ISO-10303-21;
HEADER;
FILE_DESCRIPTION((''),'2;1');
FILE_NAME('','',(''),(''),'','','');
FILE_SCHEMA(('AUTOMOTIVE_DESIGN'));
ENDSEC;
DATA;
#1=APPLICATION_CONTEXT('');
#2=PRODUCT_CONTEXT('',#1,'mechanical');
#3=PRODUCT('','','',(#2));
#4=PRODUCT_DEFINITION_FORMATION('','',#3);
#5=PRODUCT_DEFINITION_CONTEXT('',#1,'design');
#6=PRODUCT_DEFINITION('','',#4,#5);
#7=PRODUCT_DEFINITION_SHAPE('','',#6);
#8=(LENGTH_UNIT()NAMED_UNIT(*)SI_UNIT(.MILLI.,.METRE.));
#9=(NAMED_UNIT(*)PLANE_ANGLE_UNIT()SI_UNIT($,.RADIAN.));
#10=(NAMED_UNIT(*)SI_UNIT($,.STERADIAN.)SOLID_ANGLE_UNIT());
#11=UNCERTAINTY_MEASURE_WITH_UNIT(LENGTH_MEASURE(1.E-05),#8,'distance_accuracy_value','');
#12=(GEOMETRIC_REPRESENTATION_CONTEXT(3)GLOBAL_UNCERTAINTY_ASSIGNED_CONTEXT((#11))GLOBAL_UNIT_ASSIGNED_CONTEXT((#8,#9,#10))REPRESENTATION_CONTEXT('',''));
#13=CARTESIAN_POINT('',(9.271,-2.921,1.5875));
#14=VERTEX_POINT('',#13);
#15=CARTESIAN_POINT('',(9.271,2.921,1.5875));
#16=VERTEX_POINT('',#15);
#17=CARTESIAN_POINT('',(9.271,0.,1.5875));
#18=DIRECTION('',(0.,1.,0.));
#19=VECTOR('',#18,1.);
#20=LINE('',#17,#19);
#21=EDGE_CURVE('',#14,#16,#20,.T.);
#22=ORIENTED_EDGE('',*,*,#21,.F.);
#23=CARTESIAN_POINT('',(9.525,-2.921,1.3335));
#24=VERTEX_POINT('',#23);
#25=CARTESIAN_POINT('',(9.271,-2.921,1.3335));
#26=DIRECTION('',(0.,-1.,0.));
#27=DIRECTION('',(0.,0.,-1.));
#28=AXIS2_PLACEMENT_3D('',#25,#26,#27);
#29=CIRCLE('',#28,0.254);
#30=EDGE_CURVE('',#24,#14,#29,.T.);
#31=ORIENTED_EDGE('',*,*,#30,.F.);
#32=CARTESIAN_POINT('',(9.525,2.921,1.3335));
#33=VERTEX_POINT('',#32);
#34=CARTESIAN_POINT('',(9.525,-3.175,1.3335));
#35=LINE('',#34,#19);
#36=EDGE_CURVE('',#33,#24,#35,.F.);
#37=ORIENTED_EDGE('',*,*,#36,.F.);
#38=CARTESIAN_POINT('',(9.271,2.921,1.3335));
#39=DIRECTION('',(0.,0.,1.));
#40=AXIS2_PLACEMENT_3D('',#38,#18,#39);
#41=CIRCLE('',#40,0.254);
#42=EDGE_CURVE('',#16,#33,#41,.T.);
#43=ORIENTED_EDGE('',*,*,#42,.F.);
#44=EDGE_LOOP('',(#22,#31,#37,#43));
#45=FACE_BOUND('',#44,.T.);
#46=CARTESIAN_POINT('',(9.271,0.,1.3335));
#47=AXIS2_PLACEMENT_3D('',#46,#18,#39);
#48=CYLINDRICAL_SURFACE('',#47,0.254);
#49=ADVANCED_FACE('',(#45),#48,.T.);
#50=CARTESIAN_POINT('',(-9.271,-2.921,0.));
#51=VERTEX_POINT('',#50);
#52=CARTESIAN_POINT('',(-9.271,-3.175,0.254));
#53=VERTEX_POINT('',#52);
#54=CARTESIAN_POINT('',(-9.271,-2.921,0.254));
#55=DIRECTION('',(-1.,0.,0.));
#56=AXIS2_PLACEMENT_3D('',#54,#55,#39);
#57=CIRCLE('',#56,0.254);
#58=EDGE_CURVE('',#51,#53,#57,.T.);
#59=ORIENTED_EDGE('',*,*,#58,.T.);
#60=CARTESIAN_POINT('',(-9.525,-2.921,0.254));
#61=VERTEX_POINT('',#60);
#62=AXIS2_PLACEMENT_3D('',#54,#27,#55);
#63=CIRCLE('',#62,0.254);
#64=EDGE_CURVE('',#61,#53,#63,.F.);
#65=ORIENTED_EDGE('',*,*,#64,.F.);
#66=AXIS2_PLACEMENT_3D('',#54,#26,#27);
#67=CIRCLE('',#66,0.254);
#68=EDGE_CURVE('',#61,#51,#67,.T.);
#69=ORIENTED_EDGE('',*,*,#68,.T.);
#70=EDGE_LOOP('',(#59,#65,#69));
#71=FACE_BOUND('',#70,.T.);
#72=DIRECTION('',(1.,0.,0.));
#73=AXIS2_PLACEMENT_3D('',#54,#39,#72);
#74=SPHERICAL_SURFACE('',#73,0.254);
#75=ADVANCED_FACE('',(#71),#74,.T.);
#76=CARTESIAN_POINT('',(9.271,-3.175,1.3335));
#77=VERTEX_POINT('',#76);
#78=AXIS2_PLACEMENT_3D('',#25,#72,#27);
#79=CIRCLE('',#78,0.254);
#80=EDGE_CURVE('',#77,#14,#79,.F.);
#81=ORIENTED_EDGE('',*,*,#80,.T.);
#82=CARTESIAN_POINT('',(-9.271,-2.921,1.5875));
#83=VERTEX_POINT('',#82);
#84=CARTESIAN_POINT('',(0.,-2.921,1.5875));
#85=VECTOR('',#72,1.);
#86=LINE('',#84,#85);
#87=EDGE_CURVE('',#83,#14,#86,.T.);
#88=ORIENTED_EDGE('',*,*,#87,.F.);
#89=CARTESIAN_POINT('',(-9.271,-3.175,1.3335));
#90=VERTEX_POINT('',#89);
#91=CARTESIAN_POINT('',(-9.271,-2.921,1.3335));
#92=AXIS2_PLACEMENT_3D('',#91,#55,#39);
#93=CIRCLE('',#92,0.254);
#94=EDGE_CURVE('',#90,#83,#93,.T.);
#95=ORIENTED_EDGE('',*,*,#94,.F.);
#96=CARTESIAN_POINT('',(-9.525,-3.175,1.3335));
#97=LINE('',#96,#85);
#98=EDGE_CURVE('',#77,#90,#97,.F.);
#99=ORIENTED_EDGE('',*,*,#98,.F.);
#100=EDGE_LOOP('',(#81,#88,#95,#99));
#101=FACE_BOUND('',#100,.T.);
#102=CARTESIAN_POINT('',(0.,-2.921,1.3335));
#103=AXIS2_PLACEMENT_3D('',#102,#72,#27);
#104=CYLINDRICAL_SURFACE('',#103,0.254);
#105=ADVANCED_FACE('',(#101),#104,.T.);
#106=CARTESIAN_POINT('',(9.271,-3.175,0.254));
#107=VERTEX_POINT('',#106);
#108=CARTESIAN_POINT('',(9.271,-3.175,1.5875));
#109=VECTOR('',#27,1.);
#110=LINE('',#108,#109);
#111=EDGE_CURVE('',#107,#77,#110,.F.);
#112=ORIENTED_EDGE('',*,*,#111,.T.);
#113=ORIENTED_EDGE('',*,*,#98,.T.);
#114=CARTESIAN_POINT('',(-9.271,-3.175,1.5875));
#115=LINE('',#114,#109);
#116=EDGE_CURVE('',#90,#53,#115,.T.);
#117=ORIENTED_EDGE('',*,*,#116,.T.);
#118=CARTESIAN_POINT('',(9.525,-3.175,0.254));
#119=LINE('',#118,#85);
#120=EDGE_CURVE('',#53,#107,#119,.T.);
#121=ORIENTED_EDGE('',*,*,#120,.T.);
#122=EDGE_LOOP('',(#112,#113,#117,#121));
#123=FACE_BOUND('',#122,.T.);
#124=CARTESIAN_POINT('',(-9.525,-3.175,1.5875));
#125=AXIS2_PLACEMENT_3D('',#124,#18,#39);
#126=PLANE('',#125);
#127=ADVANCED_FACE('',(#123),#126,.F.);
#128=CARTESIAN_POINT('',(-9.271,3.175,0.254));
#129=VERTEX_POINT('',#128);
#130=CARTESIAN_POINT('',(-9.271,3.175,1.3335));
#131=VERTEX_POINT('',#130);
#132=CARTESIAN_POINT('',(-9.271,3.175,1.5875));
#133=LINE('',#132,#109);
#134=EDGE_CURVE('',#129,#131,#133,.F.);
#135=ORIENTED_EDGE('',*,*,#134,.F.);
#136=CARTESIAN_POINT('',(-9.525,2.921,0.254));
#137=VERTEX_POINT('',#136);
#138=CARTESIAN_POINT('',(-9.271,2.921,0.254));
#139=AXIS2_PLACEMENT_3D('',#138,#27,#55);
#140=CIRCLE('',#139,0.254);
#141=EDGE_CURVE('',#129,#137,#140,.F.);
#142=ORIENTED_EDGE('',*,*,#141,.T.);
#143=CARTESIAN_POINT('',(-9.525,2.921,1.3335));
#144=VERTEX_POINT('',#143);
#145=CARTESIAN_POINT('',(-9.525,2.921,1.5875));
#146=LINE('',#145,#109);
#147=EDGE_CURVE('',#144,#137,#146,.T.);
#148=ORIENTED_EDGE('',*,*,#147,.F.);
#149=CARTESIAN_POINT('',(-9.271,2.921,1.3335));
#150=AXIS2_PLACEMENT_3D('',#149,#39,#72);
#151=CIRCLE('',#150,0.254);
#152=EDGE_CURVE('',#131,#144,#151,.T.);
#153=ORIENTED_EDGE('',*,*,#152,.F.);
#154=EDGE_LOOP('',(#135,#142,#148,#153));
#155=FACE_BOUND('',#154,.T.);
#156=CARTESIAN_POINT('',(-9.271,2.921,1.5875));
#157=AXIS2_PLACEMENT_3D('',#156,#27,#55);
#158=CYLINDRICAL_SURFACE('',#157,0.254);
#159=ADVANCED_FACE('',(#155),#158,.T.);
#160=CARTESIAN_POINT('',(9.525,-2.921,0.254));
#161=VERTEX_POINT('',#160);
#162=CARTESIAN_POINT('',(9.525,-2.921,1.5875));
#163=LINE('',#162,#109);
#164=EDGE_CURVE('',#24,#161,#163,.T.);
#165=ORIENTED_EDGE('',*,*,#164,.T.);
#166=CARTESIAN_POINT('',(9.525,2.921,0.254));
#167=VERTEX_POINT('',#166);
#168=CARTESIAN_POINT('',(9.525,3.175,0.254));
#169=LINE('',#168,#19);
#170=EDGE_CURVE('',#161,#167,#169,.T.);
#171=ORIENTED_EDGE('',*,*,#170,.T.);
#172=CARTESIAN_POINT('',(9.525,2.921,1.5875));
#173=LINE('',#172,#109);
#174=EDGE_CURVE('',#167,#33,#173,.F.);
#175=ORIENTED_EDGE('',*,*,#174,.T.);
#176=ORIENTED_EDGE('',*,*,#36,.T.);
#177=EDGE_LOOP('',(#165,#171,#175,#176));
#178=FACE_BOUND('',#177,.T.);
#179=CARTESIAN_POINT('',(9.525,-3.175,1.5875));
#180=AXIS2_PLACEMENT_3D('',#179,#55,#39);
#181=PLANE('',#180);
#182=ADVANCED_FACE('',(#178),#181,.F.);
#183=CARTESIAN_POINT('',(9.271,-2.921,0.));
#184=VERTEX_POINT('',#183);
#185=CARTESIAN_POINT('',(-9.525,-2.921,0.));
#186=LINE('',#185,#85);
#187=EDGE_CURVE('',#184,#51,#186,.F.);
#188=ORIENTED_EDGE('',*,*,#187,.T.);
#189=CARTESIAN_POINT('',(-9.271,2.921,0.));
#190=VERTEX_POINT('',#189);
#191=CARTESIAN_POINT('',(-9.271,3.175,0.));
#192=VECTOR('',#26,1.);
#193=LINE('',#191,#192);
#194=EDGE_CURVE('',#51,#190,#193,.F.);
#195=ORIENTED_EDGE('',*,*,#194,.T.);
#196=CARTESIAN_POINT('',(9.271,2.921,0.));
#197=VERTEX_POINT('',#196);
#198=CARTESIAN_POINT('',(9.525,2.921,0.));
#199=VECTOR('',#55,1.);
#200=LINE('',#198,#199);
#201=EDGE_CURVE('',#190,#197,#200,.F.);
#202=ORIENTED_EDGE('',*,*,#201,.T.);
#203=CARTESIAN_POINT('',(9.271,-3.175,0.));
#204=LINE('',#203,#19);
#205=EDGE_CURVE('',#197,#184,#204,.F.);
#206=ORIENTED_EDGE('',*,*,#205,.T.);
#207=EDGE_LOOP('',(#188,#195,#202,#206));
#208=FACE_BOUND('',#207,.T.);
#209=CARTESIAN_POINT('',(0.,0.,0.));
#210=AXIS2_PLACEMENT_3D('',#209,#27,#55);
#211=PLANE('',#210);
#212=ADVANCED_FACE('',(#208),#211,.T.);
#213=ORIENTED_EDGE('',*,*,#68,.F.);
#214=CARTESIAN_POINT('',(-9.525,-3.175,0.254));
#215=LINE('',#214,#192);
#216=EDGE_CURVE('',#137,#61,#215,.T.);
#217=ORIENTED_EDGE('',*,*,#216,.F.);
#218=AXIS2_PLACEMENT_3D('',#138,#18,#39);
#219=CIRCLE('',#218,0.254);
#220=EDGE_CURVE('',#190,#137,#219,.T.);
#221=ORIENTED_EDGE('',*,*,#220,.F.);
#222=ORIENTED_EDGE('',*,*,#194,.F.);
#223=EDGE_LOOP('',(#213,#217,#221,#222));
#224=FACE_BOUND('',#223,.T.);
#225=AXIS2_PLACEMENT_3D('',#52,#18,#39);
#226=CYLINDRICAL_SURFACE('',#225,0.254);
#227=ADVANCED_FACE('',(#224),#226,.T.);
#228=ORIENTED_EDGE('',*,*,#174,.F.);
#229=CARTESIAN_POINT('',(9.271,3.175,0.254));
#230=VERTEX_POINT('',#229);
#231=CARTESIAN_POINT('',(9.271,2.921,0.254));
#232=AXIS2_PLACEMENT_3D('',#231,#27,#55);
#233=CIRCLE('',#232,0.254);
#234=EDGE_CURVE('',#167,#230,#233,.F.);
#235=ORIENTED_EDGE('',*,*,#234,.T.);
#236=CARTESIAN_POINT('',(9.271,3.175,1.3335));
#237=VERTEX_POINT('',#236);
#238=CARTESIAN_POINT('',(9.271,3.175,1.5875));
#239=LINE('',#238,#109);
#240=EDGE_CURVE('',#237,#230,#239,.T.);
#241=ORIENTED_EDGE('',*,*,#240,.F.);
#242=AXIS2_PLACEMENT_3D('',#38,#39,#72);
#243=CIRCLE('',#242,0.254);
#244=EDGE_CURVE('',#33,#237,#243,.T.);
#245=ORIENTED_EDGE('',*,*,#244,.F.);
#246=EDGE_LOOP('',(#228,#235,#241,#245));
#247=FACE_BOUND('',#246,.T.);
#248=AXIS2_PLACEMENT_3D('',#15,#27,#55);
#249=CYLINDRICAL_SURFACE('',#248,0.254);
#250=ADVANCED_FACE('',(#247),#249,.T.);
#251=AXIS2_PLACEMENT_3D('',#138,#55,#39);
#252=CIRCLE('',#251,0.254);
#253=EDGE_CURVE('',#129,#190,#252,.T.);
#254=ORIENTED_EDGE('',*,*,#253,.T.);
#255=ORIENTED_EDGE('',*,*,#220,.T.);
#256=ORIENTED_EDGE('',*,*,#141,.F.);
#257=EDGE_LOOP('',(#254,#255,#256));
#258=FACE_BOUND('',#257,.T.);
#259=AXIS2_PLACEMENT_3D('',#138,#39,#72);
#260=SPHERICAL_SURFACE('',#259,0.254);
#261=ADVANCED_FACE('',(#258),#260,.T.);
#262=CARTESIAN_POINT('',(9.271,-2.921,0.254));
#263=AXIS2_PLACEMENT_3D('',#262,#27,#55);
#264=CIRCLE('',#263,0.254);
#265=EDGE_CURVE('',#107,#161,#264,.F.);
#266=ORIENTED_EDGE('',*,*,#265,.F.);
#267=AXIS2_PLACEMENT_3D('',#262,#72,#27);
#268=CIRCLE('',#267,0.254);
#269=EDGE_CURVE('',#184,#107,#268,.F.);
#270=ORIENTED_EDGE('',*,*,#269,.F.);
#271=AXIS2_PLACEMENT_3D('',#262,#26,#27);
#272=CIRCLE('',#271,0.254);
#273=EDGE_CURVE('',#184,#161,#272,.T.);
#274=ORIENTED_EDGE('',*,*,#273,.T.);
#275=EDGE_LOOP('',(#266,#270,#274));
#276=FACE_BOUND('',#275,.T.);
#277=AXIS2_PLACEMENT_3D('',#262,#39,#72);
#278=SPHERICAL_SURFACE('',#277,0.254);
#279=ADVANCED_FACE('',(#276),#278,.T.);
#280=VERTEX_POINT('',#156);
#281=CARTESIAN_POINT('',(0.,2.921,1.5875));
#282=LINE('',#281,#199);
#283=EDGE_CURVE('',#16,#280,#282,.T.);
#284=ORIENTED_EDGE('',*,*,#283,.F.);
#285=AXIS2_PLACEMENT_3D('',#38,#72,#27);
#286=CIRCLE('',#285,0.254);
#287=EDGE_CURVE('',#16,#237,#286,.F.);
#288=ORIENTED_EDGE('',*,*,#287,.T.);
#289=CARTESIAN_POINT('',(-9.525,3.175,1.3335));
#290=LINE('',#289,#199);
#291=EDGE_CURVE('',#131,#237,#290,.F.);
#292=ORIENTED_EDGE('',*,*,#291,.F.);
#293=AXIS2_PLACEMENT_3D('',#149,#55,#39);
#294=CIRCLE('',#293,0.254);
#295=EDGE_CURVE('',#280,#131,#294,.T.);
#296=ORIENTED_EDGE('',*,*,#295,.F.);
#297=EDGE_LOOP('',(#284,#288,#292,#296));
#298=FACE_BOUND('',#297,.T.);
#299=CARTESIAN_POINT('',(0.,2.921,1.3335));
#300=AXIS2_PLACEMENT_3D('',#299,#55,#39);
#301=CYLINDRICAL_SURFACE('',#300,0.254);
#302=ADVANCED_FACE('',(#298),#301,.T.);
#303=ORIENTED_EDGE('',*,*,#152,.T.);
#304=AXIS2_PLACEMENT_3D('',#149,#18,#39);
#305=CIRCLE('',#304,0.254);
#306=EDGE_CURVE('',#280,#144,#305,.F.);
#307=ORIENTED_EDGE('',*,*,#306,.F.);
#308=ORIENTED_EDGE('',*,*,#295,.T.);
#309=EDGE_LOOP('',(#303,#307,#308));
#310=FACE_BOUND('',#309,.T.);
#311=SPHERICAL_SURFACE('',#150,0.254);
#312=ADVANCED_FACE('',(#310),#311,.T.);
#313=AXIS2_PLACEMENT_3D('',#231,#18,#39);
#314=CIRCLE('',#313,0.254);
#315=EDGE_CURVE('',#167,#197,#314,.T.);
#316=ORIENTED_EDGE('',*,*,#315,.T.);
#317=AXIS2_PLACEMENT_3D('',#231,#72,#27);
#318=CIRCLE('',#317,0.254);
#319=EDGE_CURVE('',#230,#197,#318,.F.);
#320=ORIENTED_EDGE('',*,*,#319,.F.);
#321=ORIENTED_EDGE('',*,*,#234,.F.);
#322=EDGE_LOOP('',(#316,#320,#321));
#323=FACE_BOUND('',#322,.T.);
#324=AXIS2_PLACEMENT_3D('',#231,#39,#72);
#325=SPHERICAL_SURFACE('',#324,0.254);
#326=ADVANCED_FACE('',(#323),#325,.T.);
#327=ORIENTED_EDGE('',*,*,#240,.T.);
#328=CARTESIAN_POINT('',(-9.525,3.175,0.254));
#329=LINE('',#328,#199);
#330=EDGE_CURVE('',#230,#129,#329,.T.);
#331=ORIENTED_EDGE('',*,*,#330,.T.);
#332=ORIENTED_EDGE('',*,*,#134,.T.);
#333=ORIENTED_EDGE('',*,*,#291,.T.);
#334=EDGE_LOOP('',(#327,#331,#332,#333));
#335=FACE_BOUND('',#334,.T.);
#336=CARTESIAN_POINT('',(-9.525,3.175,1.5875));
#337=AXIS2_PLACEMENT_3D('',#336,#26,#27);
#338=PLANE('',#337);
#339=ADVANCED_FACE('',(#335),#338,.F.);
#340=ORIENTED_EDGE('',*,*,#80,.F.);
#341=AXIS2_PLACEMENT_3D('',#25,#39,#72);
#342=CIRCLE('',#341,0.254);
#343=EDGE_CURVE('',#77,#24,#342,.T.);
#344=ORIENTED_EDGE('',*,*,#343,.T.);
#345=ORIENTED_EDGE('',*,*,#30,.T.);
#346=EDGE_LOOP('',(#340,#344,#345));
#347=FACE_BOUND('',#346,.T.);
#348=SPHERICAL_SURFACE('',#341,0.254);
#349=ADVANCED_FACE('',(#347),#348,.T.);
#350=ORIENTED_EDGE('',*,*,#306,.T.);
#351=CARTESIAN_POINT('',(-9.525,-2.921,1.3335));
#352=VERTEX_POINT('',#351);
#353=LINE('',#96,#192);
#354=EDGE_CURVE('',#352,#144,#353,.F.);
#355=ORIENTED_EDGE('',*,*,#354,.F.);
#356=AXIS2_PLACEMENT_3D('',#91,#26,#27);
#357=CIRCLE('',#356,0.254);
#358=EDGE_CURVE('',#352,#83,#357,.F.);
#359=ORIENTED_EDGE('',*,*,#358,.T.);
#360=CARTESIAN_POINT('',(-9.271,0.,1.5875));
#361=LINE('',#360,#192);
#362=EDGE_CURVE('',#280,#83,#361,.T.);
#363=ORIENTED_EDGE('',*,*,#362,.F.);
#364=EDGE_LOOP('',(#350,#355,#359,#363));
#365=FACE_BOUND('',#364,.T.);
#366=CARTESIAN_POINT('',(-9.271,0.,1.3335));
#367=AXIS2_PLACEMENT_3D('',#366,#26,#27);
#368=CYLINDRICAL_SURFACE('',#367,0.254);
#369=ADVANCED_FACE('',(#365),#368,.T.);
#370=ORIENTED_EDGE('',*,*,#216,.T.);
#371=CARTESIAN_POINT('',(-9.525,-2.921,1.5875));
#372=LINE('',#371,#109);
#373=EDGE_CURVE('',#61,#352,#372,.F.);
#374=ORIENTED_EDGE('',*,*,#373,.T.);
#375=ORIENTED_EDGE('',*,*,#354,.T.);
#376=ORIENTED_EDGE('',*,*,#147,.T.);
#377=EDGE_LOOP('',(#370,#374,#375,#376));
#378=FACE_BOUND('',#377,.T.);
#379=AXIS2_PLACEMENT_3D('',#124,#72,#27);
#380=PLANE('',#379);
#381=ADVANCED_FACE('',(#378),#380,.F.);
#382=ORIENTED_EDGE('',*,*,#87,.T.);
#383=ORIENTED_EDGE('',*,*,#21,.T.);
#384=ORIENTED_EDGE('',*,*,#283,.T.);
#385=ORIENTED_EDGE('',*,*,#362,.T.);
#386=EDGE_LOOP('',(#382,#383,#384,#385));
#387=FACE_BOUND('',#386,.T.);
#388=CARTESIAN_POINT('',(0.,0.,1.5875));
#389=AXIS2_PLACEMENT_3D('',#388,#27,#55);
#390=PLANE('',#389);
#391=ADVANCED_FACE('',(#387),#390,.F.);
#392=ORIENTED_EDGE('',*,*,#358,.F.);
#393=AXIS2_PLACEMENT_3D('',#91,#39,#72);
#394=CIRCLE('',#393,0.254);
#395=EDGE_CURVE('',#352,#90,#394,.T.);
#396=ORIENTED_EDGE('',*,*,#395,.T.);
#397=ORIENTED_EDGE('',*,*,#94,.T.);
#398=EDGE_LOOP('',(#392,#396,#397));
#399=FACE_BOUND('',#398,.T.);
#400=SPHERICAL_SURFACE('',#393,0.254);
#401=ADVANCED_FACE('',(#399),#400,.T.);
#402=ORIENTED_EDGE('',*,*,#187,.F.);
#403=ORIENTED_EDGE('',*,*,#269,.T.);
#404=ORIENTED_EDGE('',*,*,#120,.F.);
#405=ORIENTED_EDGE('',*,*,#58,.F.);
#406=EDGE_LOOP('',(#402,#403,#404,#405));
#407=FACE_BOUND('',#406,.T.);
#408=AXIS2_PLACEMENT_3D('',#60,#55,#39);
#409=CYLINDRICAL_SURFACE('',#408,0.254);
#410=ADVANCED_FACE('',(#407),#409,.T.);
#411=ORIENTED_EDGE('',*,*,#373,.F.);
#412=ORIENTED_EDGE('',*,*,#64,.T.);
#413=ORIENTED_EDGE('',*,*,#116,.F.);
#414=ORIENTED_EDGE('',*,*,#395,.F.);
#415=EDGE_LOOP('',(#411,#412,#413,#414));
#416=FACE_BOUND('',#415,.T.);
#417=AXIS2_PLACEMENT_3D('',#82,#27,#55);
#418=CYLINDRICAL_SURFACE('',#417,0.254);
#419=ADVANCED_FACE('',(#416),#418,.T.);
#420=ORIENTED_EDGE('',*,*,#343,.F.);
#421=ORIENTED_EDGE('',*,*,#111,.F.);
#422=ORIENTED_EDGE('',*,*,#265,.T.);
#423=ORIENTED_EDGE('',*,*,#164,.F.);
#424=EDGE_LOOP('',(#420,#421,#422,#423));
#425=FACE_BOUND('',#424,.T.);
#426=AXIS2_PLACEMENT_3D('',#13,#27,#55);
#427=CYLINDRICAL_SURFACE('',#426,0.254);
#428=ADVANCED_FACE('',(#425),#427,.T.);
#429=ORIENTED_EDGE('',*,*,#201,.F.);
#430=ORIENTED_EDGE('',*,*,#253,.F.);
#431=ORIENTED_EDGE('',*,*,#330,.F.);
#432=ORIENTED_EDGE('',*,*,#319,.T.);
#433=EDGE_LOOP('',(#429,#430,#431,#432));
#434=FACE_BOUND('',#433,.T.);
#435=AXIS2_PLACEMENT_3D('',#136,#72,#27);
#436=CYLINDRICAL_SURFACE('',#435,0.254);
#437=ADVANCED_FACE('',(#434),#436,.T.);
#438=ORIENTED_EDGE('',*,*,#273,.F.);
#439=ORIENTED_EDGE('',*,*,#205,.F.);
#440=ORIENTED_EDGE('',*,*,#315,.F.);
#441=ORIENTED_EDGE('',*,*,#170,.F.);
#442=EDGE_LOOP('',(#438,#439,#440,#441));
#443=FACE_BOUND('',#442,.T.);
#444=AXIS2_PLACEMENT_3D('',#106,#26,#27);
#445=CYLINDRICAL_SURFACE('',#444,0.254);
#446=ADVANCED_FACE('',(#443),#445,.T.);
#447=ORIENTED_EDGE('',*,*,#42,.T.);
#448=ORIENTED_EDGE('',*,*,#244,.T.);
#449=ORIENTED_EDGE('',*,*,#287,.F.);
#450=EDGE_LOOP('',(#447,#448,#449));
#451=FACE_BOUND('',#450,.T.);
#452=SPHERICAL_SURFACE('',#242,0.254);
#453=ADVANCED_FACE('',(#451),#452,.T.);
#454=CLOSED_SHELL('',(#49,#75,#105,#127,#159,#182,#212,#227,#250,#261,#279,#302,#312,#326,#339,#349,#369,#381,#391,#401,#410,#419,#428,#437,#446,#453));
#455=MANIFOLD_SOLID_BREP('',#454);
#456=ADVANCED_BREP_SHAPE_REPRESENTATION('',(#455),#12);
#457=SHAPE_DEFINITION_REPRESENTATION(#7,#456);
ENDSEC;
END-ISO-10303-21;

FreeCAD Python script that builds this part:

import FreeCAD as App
import Part
import Sketcher
Q = App.Units.Quantity

doc = App.newDocument("Part")
body = doc.addObject("PartDesign::Body", "Body")

# Sketch on XY plane
sketch1 = body.newObject("Sketcher::SketchObject", "Sketch")
sketch1.AttachmentSupport = (doc.getObject("XY_Plane"), [""])
sketch1.MapMode = "FlatFace"
sketch1.addGeometry(Part.LineSegment(App.Vector(-10, 3, 0), App.Vector(-10, -3, 0)), False)
sketch1.addGeometry(Part.LineSegment(App.Vector(-10, -3, 0), App.Vector(10, -3, 0)), False)
sketch1.addGeometry(Part.LineSegment(App.Vector(10, -3, 0), App.Vector(10, 3, 0)), False)
sketch1.addGeometry(Part.LineSegment(App.Vector(10, 3, 0), App.Vector(-10, 3, 0)), False)
sketch1.addConstraint(Sketcher.Constraint("Coincident", 0, 2, 1, 1))
sketch1.addConstraint(Sketcher.Constraint("Coincident", 1, 2, 2, 1))
sketch1.addConstraint(Sketcher.Constraint("Coincident", 2, 2, 3, 1))
sketch1.addConstraint(Sketcher.Constraint("Coincident", 3, 2, 0, 1))
sketch1.addConstraint(Sketcher.Constraint("Vertical", 0))
sketch1.addConstraint(Sketcher.Constraint("Horizontal", 1))
sketch1.addConstraint(Sketcher.Constraint("Vertical", 2))
sketch1.addConstraint(Sketcher.Constraint("Horizontal", 3))
sketch1.addConstraint(Sketcher.Constraint("Symmetric", 0, 2, 2, 2, -1, 1))
sketch1.addConstraint(Sketcher.Constraint("DistanceX", 1, 1, 1, 2, Q("0.75 in")))
sketch1.addConstraint(Sketcher.Constraint("DistanceY", 0, 2, 0, 1, Q("0.25 in")))
pad1 = body.newObject("PartDesign::Pad", "Pad")
pad1.Profile = sketch1
pad1.Length = Q("0.0625 in")
doc.recompute()

fillet = body.newObject("PartDesign::Fillet", "Fillet")
fillet.Base = (pad1, ["Edge1"])
fillet.UseAllEdges = True
fillet.Radius = Q("0.01 in")

doc.recompute()
